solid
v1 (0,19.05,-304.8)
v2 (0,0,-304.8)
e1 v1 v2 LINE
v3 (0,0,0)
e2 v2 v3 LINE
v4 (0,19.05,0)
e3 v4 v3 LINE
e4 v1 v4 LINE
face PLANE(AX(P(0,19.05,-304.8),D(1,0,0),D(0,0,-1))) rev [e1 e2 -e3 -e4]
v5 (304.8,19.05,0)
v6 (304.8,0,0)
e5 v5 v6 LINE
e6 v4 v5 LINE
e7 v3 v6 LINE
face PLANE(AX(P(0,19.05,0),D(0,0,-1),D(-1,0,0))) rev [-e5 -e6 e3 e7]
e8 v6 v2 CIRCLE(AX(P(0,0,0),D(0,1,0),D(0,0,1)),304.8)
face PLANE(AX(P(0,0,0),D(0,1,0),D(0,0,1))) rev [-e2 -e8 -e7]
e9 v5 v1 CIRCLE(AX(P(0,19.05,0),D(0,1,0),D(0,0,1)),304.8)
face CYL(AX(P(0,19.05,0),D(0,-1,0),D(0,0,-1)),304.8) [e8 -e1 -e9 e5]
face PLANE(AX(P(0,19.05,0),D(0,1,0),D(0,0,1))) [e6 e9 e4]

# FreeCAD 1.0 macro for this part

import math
import FreeCAD as App
import Part
import Sketcher
from FreeCAD import Vector
Q = App.Units.Quantity

doc = App.newDocument("Part")
body = doc.addObject("PartDesign::Body", "Body")

# Sketch on XZ plane
sketch1 = doc.addObject("Sketcher::SketchObject", "Sketch")
body.addObject(sketch1)
sketch1.AttachmentSupport = (doc.XZ_Plane, [""])
sketch1.MapMode = "FlatFace"
sketch1.addGeometry(Part.LineSegment(Vector(0, -305, 0), Vector(0, 0, 0)), False)
sketch1.addGeometry(Part.LineSegment(Vector(0, 0, 0), Vector(305, 0, 0)), False)
sketch1.addGeometry(Part.ArcOfCircle(Part.Circle(Vector(0, 0, 0), Vector(0, 0, 1), 305), math.radians(-90), math.radians(0)), False)
sketch1.addConstraint(Sketcher.Constraint("Coincident", 0, 2, 1, 1))
sketch1.addConstraint(Sketcher.Constraint("Coincident", 1, 2, 2, 2))
sketch1.addConstraint(Sketcher.Constraint("Coincident", 2, 1, 0, 1))
sketch1.addConstraint(Sketcher.Constraint("Vertical", 0))
sketch1.addConstraint(Sketcher.Constraint("Horizontal", 1))
sketch1.addConstraint(Sketcher.Constraint("Coincident", 2, 3, -1, 1))
sketch1.addConstraint(Sketcher.Constraint("Coincident", 0, 2, -1, 1))
sketch1.addConstraint(Sketcher.Constraint("Radius", 2, Q("12 in")))
pad1 = doc.addObject("PartDesign::Pad", "Pad")
body.addObject(pad1)
pad1.Profile = sketch1
pad1.Length = Q("0.75 in")
pad1.Reversed = True

doc.recompute()
